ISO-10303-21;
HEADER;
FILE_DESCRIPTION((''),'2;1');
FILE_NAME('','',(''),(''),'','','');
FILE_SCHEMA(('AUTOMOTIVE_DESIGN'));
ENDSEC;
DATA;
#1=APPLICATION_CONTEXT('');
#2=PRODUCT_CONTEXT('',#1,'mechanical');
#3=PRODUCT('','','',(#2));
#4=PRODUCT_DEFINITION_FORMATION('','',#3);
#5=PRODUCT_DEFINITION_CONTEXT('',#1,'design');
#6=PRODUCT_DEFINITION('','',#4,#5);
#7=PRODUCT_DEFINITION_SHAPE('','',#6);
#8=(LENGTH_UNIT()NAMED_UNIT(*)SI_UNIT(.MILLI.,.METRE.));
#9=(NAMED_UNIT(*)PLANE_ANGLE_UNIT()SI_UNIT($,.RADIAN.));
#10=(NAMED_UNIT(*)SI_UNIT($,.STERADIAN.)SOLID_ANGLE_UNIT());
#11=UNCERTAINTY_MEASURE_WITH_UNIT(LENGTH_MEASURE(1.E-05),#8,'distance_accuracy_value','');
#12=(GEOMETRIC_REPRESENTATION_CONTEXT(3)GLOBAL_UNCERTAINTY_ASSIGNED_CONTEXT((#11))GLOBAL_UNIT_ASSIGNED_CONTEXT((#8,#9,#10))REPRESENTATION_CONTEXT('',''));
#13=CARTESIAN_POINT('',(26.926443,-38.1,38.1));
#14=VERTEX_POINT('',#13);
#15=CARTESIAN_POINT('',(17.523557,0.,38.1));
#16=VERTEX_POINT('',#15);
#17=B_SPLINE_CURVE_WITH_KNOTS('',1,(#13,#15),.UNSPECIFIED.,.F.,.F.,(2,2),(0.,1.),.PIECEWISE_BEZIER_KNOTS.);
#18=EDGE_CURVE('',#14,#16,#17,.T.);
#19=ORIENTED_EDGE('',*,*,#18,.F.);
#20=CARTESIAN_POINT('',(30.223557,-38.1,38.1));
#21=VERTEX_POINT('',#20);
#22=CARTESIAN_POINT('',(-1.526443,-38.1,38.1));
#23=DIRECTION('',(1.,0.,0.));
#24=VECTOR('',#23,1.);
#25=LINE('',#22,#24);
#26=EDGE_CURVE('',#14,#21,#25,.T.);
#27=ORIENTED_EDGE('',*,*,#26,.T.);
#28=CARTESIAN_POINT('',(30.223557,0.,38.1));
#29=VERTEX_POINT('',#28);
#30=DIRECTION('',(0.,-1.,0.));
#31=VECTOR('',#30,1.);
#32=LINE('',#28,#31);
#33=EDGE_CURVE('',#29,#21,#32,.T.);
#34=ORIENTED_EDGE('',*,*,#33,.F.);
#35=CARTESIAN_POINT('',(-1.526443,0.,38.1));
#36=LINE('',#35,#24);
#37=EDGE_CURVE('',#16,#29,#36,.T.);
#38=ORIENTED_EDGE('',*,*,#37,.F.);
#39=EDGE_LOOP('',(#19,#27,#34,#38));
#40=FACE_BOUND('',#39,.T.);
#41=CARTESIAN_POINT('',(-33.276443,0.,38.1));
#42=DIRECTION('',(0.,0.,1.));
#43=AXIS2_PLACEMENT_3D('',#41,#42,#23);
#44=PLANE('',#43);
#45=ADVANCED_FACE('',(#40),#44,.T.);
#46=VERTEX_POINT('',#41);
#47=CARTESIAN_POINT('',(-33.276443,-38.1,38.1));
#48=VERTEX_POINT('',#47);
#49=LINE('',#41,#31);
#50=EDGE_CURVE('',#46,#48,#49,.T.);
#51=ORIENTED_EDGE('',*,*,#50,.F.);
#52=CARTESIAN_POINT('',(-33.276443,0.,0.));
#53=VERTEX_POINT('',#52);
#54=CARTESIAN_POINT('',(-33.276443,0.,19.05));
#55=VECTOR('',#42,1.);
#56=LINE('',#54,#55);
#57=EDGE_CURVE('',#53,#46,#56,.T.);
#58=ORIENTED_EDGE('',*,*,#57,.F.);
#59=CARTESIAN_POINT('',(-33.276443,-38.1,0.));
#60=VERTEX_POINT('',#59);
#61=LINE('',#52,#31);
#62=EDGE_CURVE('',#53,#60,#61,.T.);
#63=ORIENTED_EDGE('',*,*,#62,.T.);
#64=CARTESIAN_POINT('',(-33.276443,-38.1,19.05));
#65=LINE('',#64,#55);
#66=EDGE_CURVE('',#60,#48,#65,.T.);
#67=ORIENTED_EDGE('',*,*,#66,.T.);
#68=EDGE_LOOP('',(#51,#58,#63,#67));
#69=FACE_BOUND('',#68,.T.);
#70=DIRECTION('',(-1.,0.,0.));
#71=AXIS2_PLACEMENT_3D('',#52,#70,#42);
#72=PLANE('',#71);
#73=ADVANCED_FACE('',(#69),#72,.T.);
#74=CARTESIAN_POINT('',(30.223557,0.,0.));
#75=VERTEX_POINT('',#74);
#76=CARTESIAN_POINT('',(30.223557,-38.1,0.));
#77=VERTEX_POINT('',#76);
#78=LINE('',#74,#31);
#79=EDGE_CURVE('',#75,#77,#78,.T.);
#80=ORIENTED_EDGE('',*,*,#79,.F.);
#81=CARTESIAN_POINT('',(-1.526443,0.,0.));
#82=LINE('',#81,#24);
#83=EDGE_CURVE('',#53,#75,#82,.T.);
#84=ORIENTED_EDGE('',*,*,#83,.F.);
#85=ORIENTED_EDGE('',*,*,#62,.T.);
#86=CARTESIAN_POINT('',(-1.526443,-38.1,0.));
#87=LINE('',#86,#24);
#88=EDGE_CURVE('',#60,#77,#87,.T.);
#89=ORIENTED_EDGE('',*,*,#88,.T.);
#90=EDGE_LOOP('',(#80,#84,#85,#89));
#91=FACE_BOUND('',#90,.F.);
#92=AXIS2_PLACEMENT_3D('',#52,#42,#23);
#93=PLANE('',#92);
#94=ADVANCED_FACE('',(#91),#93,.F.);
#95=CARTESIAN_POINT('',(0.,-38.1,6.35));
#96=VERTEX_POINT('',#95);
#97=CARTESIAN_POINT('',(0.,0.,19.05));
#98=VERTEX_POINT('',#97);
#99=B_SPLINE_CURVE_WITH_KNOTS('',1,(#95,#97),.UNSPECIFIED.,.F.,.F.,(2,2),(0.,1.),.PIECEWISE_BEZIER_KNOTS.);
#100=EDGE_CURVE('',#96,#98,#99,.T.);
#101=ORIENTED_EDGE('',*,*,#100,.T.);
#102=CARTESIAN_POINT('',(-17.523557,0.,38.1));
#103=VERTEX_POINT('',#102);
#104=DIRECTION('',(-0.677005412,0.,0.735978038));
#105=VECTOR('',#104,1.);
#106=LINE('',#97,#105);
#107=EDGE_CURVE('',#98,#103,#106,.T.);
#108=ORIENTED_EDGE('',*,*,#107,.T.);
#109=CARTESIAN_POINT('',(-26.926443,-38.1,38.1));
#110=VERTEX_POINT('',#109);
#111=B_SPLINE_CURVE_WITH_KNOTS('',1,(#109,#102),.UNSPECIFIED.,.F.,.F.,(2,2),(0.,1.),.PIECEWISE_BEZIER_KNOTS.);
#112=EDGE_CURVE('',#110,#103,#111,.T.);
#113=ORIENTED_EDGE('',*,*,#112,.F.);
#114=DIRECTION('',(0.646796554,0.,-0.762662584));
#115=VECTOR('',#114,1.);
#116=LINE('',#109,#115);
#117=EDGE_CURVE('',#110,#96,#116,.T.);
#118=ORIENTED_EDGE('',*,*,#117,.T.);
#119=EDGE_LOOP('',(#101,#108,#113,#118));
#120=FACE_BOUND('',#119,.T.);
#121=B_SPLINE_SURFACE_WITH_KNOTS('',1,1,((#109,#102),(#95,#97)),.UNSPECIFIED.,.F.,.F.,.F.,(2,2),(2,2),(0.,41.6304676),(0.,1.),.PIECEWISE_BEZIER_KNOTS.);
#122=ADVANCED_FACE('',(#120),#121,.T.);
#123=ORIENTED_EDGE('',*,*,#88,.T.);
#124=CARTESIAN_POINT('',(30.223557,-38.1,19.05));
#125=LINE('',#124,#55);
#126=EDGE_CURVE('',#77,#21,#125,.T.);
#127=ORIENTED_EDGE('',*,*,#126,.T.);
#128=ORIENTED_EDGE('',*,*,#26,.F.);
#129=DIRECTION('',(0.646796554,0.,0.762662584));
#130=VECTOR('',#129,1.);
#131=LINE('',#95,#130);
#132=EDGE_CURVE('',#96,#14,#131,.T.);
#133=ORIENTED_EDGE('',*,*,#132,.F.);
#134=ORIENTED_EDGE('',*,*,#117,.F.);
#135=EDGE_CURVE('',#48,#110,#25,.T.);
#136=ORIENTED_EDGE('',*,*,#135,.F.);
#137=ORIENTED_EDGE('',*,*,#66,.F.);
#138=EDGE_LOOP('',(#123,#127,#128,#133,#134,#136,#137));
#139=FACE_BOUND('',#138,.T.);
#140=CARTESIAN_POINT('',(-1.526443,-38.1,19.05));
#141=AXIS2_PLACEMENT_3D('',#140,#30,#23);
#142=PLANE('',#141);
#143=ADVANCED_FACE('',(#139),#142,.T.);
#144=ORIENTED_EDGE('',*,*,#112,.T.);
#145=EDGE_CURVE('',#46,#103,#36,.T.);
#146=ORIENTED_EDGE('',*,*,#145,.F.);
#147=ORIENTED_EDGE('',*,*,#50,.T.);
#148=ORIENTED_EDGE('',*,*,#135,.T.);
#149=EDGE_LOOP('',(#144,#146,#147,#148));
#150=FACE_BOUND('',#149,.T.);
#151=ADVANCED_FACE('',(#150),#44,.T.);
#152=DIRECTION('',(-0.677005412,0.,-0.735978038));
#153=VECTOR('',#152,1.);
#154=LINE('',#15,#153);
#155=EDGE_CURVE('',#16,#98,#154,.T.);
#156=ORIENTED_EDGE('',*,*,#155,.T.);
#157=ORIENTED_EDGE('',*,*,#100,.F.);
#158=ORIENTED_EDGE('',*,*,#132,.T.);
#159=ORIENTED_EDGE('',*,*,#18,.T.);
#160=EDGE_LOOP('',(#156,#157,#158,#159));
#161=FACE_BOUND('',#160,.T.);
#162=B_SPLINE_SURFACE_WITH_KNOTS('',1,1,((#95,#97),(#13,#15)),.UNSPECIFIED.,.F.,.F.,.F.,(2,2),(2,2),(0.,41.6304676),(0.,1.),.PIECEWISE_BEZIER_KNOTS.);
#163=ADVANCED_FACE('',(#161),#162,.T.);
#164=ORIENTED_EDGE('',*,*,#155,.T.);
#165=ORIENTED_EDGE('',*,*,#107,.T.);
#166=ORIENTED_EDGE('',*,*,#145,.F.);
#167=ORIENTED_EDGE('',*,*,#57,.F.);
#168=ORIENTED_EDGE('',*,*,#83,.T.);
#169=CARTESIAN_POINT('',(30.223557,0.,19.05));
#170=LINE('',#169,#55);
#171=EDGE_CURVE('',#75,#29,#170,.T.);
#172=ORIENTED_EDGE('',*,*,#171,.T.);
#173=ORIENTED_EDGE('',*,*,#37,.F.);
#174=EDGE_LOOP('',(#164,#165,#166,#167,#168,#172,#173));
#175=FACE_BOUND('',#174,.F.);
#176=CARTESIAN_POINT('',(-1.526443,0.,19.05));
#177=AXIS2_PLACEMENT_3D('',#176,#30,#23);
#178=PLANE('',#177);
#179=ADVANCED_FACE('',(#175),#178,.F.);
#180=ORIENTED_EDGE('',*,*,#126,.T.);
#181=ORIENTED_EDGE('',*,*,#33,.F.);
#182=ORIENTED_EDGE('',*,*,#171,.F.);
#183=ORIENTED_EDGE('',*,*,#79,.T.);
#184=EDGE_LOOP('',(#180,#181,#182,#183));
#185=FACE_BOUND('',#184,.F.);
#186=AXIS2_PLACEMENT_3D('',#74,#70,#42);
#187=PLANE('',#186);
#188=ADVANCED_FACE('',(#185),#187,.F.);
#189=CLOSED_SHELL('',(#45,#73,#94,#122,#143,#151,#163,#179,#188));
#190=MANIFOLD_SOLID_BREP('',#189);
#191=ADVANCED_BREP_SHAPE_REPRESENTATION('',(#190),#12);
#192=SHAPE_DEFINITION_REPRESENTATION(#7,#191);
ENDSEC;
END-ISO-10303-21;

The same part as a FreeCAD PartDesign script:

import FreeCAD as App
import Part
import Sketcher

V = App.Vector
Q = App.Units.Quantity

doc = App.newDocument("Part")
body = doc.addObject("PartDesign::Body", "Body")

# Sketch on XZ plane
sketch1 = body.newObject("Sketcher::SketchObject", "Sketch")
sketch1.AttachmentSupport = (doc.getObject("XZ_Plane"), [""])
sketch1.MapMode = "FlatFace"
sketch1.addGeometry([
    Part.LineSegment(V(-33, 38, 0), V(-33, 0, 0)),
    Part.LineSegment(V(-33, 0, 0), V(30, 0, 0)),
    Part.LineSegment(V(30, 0, 0), V(30, 38, 0)),
    Part.LineSegment(V(30, 38, 0), V(-33, 38, 0)),
], False)
sketch1.addConstraint([
    Sketcher.Constraint("Coincident", 0, 2, 1, 1),
    Sketcher.Constraint("Coincident", 1, 2, 2, 1),
    Sketcher.Constraint("Coincident", 2, 2, 3, 1),
    Sketcher.Constraint("Coincident", 3, 2, 0, 1),
    Sketcher.Constraint("Vertical", 0),
    Sketcher.Constraint("Horizontal", 1),
    Sketcher.Constraint("Vertical", 2),
    Sketcher.Constraint("Horizontal", 3),
    Sketcher.Constraint("PointOnObject", 0, 2, -1),
    Sketcher.Constraint("DistanceX", 1, 1, 1, 2, Q("2.5 in")),
    Sketcher.Constraint("DistanceY", 0, 2, 0, 1, Q("1.5 in")),
    Sketcher.Constraint("DistanceX", 0, 2, -1, 1, 33.276443),
])
pad1 = body.newObject("PartDesign::Pad", "Pad")
pad1.Profile = sketch1
pad1.Length = Q("1.5 in")

# Sketch on XZ plane
sketch2 = body.newObject("Sketcher::SketchObject", "Sketch001")
sketch2.AttachmentSupport = (doc.getObject("XZ_Plane"), [""])
sketch2.MapMode = "FlatFace"
sketch2.AttachmentOffset = App.Placement(V(0, 0, 1.5 * 25.4), App.Rotation())
sketch2.addGeometry([
    Part.LineSegment(V(27, 38, 0), V(-27, 38, 0)),
    Part.LineSegment(V(-27, 38, 0), V(0, 6, 0)),
    Part.LineSegment(V(0, 6, 0), V(27, 38, 0)),
], False)
sketch2.addConstraint([
    Sketcher.Constraint("Coincident", 0, 2, 1, 1),
    Sketcher.Constraint("Coincident", 1, 2, 2, 1),
    Sketcher.Constraint("Coincident", 2, 2, 0, 1),
    Sketcher.Constraint("Horizontal", 0),
    Sketcher.Constraint("PointOnObject", 1, 2, -2),
    Sketcher.Constraint("Equal", 1, 2),
    Sketcher.Constraint("DistanceY", -1, 1, 0, 2, Q("1.5 in")),
    Sketcher.Constraint("DistanceY", -1, 1, 1, 2, Q("0.25 in")),
    Sketcher.Constraint("DistanceX", 0, 2, 0, 1, 53.852886),
])

# Sketch on XZ plane
sketch3 = body.newObject("Sketcher::SketchObject", "Sketch002")
sketch3.AttachmentSupport = (doc.getObject("XZ_Plane"), [""])
sketch3.MapMode = "FlatFace"
sketch3.addGeometry([
    Part.LineSegment(V(-18, 38, 0), V(18, 38, 0)),
    Part.LineSegment(V(18, 38, 0), V(0, 19, 0)),
    Part.LineSegment(V(0, 19, 0), V(-18, 38, 0)),
], False)
sketch3.addConstraint([
    Sketcher.Constraint("Coincident", 0, 2, 1, 1),
    Sketcher.Constraint("Coincident", 1, 2, 2, 1),
    Sketcher.Constraint("Coincident", 2, 2, 0, 1),
    Sketcher.Constraint("Horizontal", 0),
    Sketcher.Constraint("PointOnObject", 1, 2, -2),
    Sketcher.Constraint("Equal", 1, 2),
    Sketcher.Constraint("DistanceY", -1, 1, 0, 2, Q("1.5 in")),
    Sketcher.Constraint("DistanceY", -1, 1, 1, 2, Q("0.75 in")),
    Sketcher.Constraint("DistanceX", 0, 1, 0, 2, 35.047114),
])

subtractiveloft = body.newObject("PartDesign::SubtractiveLoft", "SubtractiveLoft")
subtractiveloft.Profile = sketch2
subtractiveloft.Sections = [sketch3]

doc.recompute()
